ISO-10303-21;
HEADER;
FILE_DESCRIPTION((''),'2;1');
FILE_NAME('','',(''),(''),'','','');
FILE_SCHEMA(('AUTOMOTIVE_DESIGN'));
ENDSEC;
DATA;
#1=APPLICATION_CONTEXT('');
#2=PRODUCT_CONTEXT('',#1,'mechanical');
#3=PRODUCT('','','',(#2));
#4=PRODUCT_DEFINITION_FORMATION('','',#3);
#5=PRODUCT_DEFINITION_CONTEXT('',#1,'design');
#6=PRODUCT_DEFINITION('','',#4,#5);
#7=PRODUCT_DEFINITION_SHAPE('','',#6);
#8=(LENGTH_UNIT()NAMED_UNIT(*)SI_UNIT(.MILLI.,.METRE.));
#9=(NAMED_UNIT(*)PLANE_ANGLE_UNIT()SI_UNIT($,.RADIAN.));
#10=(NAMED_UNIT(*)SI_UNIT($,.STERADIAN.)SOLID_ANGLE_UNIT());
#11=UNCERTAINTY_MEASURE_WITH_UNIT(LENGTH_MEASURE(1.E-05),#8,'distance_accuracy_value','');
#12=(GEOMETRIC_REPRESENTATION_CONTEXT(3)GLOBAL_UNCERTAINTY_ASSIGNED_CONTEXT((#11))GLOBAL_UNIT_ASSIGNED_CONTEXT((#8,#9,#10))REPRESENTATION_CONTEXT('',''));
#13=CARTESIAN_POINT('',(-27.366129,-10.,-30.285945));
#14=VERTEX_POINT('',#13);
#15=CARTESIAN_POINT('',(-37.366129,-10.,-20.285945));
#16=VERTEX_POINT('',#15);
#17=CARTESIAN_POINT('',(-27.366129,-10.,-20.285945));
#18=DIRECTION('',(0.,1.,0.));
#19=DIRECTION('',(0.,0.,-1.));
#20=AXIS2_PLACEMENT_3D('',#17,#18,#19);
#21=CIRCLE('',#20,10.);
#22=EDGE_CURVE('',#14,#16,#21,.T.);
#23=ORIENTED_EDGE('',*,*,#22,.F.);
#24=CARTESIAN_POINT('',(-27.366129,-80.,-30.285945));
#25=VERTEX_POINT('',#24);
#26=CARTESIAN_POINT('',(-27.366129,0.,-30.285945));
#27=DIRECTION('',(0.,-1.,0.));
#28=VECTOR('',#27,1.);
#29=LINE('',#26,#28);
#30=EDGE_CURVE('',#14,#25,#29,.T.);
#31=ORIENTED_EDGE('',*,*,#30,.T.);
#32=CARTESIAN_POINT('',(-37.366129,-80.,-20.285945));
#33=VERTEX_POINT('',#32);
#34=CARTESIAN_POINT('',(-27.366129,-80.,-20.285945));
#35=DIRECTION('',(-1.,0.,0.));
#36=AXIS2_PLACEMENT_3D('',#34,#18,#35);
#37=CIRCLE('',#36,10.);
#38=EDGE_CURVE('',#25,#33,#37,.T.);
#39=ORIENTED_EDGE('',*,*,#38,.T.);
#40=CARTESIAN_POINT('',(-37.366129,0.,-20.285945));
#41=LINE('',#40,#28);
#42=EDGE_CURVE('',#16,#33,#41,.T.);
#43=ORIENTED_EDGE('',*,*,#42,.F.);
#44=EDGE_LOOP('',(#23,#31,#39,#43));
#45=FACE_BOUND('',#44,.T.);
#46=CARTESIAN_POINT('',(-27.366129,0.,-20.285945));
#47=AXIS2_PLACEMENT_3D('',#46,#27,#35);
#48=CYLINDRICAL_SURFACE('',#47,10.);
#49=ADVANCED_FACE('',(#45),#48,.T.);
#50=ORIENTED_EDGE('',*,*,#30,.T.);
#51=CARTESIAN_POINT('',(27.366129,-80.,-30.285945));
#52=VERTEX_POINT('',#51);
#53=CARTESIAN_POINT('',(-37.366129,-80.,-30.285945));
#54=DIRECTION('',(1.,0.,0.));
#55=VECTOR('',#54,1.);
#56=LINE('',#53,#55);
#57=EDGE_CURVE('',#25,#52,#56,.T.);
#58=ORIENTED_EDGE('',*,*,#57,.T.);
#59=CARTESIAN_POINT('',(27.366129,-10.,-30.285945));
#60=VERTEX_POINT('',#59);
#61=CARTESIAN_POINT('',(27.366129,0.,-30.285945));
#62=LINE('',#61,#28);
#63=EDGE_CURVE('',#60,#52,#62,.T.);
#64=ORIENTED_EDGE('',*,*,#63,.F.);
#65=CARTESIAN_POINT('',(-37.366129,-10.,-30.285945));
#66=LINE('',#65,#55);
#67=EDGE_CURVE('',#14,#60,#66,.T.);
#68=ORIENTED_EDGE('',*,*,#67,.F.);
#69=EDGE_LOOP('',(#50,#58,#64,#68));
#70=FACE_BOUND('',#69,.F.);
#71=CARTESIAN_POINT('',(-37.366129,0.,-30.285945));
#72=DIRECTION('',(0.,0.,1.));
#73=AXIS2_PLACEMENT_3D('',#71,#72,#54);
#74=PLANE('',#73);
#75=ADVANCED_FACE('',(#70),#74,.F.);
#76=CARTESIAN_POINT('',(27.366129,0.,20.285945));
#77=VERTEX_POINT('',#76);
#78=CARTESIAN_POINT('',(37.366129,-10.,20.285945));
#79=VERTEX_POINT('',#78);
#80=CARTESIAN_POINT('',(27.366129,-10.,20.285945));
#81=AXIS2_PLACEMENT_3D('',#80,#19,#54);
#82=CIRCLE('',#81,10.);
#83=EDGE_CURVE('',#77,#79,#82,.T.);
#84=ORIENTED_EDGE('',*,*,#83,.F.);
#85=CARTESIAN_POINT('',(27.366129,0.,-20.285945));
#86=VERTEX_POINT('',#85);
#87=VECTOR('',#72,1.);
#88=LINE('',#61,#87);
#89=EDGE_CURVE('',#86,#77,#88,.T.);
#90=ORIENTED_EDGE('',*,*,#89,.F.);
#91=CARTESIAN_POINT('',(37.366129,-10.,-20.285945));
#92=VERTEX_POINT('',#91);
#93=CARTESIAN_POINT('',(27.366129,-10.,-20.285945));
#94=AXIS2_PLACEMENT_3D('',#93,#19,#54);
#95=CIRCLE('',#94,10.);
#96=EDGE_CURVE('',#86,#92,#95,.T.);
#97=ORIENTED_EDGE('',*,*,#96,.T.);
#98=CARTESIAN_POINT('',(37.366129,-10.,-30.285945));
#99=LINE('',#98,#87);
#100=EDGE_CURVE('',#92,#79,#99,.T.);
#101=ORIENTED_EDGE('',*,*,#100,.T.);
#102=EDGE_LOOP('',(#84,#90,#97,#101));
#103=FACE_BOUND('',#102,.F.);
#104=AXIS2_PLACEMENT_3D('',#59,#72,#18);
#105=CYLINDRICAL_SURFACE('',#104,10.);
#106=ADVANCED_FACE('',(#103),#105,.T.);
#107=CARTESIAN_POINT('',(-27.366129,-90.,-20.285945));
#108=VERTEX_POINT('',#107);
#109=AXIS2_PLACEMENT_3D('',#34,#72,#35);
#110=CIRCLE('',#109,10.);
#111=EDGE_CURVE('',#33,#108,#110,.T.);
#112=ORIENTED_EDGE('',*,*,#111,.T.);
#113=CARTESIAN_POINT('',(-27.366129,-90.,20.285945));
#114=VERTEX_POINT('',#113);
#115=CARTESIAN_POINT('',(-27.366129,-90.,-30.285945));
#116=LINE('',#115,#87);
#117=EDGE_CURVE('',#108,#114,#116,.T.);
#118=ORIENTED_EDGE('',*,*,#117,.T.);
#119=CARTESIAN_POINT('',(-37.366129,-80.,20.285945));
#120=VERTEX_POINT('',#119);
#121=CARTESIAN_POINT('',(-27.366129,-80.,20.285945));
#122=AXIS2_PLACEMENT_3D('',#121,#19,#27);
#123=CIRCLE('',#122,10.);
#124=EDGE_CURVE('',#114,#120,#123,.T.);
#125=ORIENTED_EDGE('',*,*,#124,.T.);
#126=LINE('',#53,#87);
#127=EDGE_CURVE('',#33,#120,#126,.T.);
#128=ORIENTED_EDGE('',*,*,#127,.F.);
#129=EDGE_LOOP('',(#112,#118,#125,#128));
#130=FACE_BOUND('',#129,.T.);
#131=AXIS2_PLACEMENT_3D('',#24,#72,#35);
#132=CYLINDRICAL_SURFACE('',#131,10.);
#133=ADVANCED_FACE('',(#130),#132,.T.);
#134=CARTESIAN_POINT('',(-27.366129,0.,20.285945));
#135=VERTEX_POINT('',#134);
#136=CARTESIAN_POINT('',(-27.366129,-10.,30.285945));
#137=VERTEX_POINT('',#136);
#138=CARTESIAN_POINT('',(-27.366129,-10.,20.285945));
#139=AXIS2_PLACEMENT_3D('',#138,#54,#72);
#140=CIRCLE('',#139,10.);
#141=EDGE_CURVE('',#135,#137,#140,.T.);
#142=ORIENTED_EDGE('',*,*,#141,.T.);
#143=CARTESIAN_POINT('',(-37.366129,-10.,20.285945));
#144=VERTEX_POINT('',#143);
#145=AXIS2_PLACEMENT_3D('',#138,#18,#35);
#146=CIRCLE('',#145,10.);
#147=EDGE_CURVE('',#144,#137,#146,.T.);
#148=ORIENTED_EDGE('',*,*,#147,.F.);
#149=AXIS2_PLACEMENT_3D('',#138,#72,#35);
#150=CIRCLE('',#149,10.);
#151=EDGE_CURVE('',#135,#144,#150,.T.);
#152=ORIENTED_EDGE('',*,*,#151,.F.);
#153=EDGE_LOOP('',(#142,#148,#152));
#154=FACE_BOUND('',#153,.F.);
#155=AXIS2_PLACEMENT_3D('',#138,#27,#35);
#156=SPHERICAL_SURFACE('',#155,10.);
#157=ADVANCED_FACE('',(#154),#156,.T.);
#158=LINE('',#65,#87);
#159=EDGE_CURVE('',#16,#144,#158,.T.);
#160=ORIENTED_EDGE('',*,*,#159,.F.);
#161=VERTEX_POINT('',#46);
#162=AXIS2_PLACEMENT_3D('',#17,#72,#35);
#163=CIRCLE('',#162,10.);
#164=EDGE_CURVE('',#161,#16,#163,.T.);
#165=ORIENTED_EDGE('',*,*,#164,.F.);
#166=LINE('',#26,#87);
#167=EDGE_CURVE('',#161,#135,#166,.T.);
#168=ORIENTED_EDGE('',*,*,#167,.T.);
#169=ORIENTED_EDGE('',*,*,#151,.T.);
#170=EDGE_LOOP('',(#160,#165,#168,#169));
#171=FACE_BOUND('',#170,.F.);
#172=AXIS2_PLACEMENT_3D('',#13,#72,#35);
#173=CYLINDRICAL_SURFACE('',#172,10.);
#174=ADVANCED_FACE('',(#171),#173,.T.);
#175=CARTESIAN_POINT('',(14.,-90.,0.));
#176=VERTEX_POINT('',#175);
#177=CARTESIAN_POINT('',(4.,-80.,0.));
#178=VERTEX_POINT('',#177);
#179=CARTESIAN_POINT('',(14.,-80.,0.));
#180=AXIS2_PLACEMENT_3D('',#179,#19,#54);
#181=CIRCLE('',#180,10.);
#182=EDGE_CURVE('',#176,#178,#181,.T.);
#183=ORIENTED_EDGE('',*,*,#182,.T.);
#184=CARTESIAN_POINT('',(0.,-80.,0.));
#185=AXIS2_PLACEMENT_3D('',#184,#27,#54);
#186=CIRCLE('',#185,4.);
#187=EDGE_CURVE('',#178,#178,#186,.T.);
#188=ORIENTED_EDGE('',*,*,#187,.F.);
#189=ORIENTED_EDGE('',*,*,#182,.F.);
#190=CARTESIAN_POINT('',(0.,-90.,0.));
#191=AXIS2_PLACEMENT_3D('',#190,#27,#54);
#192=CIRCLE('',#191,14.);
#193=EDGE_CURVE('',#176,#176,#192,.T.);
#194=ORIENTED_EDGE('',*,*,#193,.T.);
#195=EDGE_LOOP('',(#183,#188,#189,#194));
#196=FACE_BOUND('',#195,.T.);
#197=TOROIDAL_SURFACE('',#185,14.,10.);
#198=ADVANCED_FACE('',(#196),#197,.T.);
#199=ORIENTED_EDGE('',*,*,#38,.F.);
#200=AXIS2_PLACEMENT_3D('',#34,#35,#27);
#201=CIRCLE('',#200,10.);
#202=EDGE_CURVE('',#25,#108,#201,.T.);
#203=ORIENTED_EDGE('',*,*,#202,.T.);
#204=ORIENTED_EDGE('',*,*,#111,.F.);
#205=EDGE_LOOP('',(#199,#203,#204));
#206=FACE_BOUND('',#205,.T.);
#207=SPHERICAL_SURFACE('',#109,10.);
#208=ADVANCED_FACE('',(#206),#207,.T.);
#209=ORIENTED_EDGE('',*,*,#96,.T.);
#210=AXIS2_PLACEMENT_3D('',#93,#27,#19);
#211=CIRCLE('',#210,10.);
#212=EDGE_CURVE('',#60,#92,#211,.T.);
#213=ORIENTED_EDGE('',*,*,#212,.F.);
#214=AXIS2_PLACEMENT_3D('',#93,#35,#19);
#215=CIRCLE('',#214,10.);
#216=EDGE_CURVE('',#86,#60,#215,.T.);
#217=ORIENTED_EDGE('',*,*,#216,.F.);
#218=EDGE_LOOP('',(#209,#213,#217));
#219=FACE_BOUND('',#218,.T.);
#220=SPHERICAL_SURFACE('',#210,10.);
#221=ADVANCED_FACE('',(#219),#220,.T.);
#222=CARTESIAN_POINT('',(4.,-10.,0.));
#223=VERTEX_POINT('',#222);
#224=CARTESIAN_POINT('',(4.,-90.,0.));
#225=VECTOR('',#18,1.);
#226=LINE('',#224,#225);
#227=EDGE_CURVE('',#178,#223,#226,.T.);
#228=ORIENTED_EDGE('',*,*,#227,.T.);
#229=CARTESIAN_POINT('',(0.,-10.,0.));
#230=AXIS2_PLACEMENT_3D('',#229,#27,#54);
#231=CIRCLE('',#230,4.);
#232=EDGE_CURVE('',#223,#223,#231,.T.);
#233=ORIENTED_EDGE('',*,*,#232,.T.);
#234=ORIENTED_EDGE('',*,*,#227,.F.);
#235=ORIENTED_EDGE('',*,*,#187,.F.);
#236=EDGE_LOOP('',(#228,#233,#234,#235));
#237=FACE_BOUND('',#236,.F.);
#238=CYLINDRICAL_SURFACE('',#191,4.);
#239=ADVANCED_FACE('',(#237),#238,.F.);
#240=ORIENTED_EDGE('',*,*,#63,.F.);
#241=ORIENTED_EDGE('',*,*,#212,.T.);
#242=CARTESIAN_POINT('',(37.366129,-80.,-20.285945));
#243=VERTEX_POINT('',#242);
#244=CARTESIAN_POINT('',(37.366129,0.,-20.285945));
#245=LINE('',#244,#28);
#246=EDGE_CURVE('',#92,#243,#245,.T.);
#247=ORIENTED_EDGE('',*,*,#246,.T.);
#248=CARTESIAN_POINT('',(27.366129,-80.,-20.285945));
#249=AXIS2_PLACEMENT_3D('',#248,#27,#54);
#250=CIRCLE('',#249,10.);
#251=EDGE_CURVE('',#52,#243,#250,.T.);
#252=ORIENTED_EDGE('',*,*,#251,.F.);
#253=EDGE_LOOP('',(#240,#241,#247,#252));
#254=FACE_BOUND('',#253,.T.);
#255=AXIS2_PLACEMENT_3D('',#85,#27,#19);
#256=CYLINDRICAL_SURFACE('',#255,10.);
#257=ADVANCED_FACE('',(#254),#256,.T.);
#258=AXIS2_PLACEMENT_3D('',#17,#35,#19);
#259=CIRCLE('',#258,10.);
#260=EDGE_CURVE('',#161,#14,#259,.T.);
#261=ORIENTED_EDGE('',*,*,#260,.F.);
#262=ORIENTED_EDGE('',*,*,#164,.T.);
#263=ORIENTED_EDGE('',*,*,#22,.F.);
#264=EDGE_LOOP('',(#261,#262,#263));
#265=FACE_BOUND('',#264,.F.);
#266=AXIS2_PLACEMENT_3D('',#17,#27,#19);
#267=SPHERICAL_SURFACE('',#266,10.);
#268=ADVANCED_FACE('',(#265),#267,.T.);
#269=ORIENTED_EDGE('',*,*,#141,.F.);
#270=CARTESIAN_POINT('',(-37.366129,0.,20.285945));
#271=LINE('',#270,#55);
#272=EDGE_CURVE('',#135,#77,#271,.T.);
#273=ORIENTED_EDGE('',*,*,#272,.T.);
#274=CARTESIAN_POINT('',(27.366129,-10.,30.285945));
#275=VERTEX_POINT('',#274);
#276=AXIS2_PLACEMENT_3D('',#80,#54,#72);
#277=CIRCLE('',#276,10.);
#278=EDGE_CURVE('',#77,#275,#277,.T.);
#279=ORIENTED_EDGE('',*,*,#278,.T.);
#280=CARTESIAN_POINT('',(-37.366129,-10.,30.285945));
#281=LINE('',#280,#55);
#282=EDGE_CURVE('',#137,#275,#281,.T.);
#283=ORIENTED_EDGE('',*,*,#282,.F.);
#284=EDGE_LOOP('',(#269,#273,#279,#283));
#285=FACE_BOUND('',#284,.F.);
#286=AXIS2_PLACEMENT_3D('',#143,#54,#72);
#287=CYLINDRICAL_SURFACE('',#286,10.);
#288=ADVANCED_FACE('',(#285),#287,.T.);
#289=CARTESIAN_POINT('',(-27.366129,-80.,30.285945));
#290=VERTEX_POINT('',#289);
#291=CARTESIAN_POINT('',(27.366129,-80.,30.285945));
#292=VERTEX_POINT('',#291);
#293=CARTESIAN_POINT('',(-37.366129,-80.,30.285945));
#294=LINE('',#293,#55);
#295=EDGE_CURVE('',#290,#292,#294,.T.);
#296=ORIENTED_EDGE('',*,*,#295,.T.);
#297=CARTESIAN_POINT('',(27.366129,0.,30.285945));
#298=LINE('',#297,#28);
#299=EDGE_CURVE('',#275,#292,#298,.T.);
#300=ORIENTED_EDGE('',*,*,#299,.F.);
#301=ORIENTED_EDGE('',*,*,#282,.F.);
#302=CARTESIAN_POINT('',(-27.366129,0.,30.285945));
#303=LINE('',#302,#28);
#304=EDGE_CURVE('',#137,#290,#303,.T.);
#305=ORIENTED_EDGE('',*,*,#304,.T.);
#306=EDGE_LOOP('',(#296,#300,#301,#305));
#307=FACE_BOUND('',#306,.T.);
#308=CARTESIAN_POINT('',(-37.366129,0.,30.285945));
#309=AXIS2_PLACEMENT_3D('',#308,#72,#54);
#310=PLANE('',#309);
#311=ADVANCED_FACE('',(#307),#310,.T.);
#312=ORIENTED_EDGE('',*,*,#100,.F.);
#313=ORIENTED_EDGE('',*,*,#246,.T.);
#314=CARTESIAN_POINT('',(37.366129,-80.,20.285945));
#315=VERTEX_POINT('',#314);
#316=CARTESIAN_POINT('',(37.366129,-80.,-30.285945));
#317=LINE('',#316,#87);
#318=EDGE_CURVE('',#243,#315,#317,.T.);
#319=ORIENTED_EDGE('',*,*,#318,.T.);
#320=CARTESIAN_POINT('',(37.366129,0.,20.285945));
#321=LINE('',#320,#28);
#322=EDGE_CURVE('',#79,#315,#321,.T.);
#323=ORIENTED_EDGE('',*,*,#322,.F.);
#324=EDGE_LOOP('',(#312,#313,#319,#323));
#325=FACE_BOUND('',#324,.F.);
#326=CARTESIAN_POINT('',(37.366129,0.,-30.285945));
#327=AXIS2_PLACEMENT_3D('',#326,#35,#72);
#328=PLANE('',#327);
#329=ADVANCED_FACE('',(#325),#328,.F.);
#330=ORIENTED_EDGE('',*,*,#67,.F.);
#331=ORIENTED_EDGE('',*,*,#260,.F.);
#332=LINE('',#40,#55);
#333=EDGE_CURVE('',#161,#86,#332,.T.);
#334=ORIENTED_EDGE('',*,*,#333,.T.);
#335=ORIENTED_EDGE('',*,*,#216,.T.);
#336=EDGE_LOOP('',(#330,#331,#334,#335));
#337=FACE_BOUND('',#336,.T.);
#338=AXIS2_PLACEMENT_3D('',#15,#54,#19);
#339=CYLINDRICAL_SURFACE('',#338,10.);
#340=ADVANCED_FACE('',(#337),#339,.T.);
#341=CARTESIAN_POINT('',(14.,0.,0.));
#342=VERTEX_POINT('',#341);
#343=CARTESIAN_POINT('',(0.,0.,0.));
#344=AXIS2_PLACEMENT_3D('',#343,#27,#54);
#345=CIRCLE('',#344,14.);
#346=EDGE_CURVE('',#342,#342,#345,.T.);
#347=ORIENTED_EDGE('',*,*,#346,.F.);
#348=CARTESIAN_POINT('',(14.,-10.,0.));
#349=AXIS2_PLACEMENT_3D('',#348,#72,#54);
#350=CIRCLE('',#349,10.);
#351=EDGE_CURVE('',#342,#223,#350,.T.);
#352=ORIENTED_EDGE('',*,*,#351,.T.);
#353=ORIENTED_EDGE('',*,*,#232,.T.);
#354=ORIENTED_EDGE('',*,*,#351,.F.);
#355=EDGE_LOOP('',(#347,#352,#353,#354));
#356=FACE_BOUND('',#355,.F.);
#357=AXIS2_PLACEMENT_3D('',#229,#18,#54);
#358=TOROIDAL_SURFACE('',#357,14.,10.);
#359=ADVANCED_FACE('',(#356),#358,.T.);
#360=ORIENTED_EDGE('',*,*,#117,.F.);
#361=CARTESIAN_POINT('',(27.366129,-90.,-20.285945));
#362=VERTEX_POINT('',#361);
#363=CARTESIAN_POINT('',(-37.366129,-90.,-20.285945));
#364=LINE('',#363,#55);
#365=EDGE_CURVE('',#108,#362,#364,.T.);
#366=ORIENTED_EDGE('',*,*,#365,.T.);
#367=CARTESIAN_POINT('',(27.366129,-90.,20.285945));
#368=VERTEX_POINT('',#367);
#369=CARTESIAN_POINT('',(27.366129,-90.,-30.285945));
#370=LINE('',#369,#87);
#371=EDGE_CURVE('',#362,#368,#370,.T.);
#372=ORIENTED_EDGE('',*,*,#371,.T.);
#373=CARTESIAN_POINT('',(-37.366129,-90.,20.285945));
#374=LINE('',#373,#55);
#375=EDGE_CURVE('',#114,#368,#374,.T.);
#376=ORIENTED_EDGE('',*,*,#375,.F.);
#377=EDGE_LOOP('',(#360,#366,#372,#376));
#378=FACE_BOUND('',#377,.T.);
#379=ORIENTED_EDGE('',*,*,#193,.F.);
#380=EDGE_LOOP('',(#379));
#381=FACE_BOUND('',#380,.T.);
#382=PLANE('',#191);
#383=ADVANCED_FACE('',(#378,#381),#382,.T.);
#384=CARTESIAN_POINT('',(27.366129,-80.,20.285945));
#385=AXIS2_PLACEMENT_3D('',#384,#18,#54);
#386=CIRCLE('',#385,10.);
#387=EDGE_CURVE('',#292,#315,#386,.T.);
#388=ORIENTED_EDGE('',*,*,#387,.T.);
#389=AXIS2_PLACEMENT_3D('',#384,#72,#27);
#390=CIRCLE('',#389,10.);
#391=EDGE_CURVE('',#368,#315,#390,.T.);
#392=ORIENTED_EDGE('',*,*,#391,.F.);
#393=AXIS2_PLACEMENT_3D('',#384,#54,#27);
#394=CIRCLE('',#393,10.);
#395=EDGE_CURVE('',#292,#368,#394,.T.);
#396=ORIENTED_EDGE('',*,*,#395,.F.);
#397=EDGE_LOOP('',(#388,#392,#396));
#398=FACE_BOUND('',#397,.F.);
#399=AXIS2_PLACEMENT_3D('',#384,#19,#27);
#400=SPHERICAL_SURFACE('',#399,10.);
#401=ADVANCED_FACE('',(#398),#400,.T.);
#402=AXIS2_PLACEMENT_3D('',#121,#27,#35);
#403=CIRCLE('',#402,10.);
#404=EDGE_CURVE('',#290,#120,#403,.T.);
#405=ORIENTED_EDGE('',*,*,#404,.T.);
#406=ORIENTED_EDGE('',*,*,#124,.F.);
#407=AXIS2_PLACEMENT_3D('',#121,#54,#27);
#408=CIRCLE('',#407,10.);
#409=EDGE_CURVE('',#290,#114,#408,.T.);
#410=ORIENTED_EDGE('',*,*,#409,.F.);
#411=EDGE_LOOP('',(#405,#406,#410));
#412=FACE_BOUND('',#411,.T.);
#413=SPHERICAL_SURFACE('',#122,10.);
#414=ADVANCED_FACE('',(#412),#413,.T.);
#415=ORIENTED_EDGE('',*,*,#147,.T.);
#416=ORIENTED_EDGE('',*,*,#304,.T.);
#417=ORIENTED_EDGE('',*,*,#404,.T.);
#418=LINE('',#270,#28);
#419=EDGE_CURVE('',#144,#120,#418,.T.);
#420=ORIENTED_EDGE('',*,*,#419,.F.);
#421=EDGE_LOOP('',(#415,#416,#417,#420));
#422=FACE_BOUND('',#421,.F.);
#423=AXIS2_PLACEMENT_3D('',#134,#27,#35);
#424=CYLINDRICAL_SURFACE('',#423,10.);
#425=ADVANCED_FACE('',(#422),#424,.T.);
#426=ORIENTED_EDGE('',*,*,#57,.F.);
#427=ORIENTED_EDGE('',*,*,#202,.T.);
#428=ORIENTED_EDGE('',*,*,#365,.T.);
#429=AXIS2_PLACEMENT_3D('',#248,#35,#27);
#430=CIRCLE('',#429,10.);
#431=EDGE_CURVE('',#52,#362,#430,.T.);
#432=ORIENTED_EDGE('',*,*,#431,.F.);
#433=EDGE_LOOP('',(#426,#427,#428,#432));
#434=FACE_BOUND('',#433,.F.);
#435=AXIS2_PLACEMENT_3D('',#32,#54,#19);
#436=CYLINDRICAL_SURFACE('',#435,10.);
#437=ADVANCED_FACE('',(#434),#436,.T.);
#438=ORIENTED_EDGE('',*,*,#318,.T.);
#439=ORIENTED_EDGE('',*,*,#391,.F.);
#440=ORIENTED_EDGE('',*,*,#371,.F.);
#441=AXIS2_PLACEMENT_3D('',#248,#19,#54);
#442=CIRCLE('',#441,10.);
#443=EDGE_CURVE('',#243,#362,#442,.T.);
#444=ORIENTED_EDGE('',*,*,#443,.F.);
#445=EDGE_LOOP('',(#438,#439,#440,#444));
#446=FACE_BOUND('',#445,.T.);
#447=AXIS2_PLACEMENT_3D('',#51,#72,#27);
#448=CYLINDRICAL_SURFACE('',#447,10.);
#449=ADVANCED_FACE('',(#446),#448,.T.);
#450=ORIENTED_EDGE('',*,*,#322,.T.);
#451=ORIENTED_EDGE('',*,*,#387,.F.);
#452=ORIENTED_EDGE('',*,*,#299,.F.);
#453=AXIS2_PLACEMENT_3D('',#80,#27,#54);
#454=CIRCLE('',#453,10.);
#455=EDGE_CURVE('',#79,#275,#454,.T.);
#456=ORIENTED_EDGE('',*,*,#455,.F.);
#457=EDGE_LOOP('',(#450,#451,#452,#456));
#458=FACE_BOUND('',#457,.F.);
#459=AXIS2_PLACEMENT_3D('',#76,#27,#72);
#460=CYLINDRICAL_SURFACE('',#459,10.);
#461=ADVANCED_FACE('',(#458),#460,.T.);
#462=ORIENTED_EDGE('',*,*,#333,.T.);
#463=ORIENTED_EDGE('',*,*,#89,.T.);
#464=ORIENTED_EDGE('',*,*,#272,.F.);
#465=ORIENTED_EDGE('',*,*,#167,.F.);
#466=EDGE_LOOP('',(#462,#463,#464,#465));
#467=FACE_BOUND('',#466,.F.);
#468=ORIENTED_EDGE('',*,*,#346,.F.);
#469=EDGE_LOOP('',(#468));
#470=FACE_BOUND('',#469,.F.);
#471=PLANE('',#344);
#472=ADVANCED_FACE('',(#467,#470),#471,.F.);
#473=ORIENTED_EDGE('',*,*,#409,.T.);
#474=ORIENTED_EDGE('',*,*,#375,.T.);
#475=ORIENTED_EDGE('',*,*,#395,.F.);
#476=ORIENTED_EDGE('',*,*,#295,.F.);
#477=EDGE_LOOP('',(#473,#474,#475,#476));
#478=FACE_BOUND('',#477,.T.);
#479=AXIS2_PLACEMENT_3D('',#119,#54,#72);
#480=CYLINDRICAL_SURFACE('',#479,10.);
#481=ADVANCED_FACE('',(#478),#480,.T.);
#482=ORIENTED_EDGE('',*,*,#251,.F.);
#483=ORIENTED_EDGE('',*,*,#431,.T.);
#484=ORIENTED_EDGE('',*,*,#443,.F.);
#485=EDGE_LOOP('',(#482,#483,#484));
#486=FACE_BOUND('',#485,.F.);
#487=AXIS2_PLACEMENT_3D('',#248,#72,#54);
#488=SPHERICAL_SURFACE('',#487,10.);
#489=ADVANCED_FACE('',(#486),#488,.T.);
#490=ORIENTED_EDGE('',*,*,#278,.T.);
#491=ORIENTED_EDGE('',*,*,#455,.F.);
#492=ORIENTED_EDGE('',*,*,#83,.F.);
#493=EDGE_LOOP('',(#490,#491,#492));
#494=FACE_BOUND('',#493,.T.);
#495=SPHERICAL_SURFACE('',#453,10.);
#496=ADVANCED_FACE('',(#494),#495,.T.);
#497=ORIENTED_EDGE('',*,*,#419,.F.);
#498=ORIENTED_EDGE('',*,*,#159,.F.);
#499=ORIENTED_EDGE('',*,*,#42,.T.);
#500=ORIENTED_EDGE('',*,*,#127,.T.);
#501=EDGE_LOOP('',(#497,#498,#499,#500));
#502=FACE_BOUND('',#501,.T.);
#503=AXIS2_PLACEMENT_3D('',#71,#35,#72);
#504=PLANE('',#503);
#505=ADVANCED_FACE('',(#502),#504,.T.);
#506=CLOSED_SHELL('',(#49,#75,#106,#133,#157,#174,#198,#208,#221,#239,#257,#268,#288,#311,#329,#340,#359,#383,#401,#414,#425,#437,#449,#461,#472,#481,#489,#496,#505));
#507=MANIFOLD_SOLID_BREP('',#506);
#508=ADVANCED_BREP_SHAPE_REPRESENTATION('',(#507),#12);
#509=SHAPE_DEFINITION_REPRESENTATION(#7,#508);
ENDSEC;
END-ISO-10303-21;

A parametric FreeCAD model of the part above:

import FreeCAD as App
import Part
import Sketcher
Q = App.Units.Quantity

doc = App.newDocument("Part")
body = doc.addObject("PartDesign::Body", "Body")

# Sketch on XZ plane
sketch1 = body.newObject("Sketcher::SketchObject", "Sketch")
sketch1.AttachmentSupport = (doc.getObject("XZ_Plane"), [""])
sketch1.MapMode = "FlatFace"
sketch1.addGeometry([
    Part.LineSegment(App.Vector(-37, 30, 0), App.Vector(-37, -30, 0)),
    Part.LineSegment(App.Vector(-37, -30, 0), App.Vector(37, -30, 0)),
    Part.LineSegment(App.Vector(37, -30, 0), App.Vector(37, 30, 0)),
    Part.LineSegment(App.Vector(37, 30, 0), App.Vector(-37, 30, 0)),
], False)
sketch1.addConstraint([
    Sketcher.Constraint("Coincident", 0, 2, 1, 1),
    Sketcher.Constraint("Coincident", 1, 2, 2, 1),
    Sketcher.Constraint("Coincident", 2, 2, 3, 1),
    Sketcher.Constraint("Coincident", 3, 2, 0, 1),
    Sketcher.Constraint("Vertical", 0),
    Sketcher.Constraint("Horizontal", 1),
    Sketcher.Constraint("Vertical", 2),
    Sketcher.Constraint("Horizontal", 3),
    Sketcher.Constraint("Symmetric", 0, 2, 2, 2, -1, 1),
    Sketcher.Constraint("DistanceX", 1, 1, 1, 2, Q("74.732258 mm")),
    Sketcher.Constraint("DistanceY", 0, 2, 0, 1, Q("60.57189 mm")),
])
pad1 = body.newObject("PartDesign::Pad", "Pad")
pad1.Profile = sketch1
pad1.Length = 90

# Sketch on XZ plane
sketch2 = body.newObject("Sketcher::SketchObject", "Sketch001")
sketch2.AttachmentSupport = (doc.getObject("XZ_Plane"), [""])
sketch2.MapMode = "FlatFace"
sketch2.AttachmentOffset = App.Placement(App.Vector(0, 0, 90), App.Rotation())
sketch2.addGeometry(Part.Circle(App.Vector(0, 0, 0), App.Vector(0, 0, 1), 4), False)
sketch2.addConstraint([
    Sketcher.Constraint("Coincident", 0, 3, -1, 1),
    Sketcher.Constraint("Diameter", 0, Q("8 mm")),
])
pocket1 = body.newObject("PartDesign::Pocket", "Pocket")
pocket1.Profile = sketch2
pocket1.Type = "ThroughAll"
doc.recompute()

fillet = body.newObject("PartDesign::Fillet", "Fillet")
fillet.Base = (pocket1, ["Edge1"])
fillet.UseAllEdges = True
fillet.Radius = 10

doc.recompute()
